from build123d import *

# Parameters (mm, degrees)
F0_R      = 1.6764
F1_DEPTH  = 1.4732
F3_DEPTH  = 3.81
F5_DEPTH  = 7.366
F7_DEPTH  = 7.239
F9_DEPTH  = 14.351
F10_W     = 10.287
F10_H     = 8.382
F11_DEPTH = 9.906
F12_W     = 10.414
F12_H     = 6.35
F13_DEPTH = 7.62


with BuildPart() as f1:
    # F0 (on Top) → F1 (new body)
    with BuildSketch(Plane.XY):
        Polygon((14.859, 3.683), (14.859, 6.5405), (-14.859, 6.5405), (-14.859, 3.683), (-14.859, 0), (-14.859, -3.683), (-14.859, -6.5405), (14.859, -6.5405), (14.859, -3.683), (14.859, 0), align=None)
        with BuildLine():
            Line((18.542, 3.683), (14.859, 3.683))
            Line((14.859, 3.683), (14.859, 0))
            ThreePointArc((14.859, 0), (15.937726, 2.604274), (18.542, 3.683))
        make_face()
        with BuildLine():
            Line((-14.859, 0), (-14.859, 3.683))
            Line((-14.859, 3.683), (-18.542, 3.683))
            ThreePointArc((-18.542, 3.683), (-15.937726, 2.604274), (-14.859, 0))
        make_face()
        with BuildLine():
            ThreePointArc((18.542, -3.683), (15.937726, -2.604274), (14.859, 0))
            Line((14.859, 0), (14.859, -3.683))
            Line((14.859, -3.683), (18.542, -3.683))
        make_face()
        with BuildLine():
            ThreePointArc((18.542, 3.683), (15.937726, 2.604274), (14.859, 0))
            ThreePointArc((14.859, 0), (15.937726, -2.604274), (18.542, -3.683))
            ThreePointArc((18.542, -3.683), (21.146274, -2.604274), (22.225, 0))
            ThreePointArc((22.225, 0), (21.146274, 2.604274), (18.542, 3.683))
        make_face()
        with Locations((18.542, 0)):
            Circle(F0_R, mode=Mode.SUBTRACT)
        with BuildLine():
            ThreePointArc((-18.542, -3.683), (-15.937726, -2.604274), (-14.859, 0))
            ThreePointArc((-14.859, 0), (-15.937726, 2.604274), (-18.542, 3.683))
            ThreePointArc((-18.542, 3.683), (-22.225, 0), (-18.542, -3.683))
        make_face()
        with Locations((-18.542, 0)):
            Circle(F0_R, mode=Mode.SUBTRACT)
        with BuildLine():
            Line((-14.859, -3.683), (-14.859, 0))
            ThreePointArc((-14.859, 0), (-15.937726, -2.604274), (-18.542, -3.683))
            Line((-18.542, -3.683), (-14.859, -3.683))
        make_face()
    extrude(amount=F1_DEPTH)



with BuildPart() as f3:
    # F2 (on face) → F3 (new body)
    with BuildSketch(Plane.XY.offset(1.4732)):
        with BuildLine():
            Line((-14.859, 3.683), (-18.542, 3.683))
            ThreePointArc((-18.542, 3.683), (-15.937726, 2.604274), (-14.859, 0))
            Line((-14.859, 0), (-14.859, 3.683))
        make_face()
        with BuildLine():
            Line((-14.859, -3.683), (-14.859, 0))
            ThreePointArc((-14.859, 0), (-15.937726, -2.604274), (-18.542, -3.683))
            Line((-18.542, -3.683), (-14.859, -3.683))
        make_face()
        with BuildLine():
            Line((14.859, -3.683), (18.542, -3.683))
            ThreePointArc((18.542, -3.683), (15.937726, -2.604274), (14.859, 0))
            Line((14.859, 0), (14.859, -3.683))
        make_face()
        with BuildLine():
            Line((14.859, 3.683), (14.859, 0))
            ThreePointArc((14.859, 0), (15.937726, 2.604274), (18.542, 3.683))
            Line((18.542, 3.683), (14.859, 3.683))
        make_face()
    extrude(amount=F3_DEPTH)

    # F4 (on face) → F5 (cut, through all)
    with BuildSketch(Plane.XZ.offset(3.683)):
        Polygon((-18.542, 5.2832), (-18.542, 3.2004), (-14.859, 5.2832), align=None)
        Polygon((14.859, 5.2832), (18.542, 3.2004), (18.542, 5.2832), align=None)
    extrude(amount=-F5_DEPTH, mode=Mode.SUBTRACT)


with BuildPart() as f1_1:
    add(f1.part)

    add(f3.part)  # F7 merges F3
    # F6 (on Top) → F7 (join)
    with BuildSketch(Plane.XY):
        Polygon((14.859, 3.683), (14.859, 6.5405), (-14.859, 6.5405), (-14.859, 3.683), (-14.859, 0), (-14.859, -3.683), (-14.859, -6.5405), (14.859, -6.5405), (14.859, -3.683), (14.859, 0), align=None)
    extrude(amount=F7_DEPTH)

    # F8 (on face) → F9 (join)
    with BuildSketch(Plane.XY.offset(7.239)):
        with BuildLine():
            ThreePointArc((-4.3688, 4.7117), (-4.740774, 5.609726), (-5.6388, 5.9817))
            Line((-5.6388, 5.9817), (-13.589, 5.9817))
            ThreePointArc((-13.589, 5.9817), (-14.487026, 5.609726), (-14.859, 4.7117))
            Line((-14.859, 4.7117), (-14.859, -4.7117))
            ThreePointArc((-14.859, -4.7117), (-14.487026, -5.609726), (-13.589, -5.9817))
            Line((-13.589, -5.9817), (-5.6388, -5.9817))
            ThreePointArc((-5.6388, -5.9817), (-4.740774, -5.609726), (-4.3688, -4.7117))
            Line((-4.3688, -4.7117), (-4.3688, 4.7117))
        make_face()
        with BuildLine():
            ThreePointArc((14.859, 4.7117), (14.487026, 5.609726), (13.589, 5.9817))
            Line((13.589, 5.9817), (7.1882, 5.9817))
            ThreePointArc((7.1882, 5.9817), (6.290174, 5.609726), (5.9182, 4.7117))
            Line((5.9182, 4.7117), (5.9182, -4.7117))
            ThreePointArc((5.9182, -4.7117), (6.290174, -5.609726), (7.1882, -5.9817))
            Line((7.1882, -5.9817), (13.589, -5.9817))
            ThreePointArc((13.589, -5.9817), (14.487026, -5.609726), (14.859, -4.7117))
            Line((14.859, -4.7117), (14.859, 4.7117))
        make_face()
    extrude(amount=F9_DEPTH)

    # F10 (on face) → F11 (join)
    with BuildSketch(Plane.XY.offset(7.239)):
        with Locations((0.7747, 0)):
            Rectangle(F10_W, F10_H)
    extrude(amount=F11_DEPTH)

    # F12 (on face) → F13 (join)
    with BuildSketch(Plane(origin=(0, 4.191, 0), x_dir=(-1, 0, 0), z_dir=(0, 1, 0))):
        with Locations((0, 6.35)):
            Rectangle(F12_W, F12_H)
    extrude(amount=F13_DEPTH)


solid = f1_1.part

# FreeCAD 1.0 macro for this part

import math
import FreeCAD as App
import Part
import Sketcher
Q = App.Units.Quantity


def add_polygon(sketch, points):
    """Adds a closed chain of lines whose ends are joined by coincident constraints."""
    first, n = sketch.GeometryCount, len(points)
    for a, b in zip(points, points[1:] + points[:1]):
        sketch.addGeometry(Part.LineSegment(App.Vector(*a, 0), App.Vector(*b, 0)), False)
    for i in range(n):
        sketch.addConstraint(Sketcher.Constraint("Coincident", first + i, 2, first + (i + 1) % n, 1))

doc = App.newDocument("Part")
body = doc.addObject("PartDesign::Body", "Body")

# Sketch on XY plane
sketch1 = body.newObject("Sketcher::SketchObject", "Sketch")
sketch1.AttachmentSupport = (doc.getObject("XY_Plane"), [""])
sketch1.MapMode = "FlatFace"
sketch1.addGeometry([
    Part.LineSegment(App.Vector(14.9, 6.5, 0), App.Vector(-14.9, 6.5, 0)),  # 0
    Part.LineSegment(App.Vector(-14.9, 6.5, 0), App.Vector(-14.9, 3.7, 0)),  # 1
    Part.LineSegment(App.Vector(-14.9, 3.7, 0), App.Vector(-18.5, 3.7, 0)),  # 2
    Part.ArcOfCircle(Part.Circle(App.Vector(-18.5, 0, 0), App.Vector(0, 0, 1), 3.7), math.radians(90), math.radians(270)),  # 3
    Part.LineSegment(App.Vector(-18.5, -3.7, 0), App.Vector(-14.9, -3.7, 0)),  # 4
    Part.LineSegment(App.Vector(-14.9, -3.7, 0), App.Vector(-14.9, -6.5, 0)),  # 5
    Part.LineSegment(App.Vector(-14.9, -6.5, 0), App.Vector(14.9, -6.5, 0)),  # 6
    Part.LineSegment(App.Vector(14.9, -6.5, 0), App.Vector(14.9, -3.7, 0)),  # 7
    Part.LineSegment(App.Vector(14.9, -3.7, 0), App.Vector(18.5, -3.7, 0)),  # 8
    Part.ArcOfCircle(Part.Circle(App.Vector(18.5, 0, 0), App.Vector(0, 0, 1), 3.7), math.radians(-90), math.radians(0)),  # 9
    Part.ArcOfCircle(Part.Circle(App.Vector(18.5, 0, 0), App.Vector(0, 0, 1), 3.7), math.radians(0), math.radians(90)),  # 10
    Part.LineSegment(App.Vector(18.5, 3.7, 0), App.Vector(14.9, 3.7, 0)),  # 11
    Part.LineSegment(App.Vector(14.9, 3.7, 0), App.Vector(14.9, 6.5, 0)),  # 12
    Part.Circle(App.Vector(-18.5, 0, 0), App.Vector(0, 0, 1), 1.7),  # 13
    Part.Circle(App.Vector(18.5, 0, 0), App.Vector(0, 0, 1), 1.7),  # 14
], False)
sketch1.addConstraint([
    Sketcher.Constraint("Coincident", 0, 2, 1, 1),
    Sketcher.Constraint("Coincident", 1, 2, 2, 1),
    Sketcher.Constraint("Tangent", 2, 2, 3, 1),
    Sketcher.Constraint("Tangent", 3, 2, 4, 1),
    Sketcher.Constraint("Coincident", 4, 2, 5, 1),
    Sketcher.Constraint("Coincident", 5, 2, 6, 1),
    Sketcher.Constraint("Coincident", 6, 2, 7, 1),
    Sketcher.Constraint("Coincident", 7, 2, 8, 1),
    Sketcher.Constraint("Tangent", 8, 2, 9, 1),
    Sketcher.Constraint("Tangent", 9, 2, 10, 1),
    Sketcher.Constraint("Tangent", 10, 2, 11, 1),
    Sketcher.Constraint("Coincident", 11, 2, 12, 1),
    Sketcher.Constraint("Coincident", 12, 2, 0, 1),
    Sketcher.Constraint("Horizontal", 0),
    Sketcher.Constraint("Vertical", 1),
    Sketcher.Constraint("Horizontal", 2),
    Sketcher.Constraint("Horizontal", 4),
    Sketcher.Constraint("Vertical", 5),
    Sketcher.Constraint("Horizontal", 6),
    Sketcher.Constraint("Vertical", 7),
    Sketcher.Constraint("Horizontal", 8),
    Sketcher.Constraint("Horizontal", 11),
    Sketcher.Constraint("Vertical", 12),
    Sketcher.Constraint("Coincident", 13, 3, 3, 3),
    Sketcher.Constraint("Coincident", 14, 3, 9, 3),
    Sketcher.Constraint("Equal", 3, 9),
    Sketcher.Constraint("Equal", 9, 10),
    Sketcher.Constraint("Equal", 13, 14),
    Sketcher.Constraint("Symmetric", 3, 3, 9, 3, -1, 1),
    Sketcher.Constraint("Symmetric", 0, 2, 6, 2, -1, 1),
    Sketcher.Constraint("Symmetric", 4, 2, 7, 2, -2),
    Sketcher.Constraint("PointOnObject", 9, 2, -1),
    Sketcher.Constraint("Vertical", 7, 2, 11, 2),
    Sketcher.Constraint("Diameter", 13, Q("0.132 in")),
    Sketcher.Constraint("Radius", 3, Q("0.145 in")),
    Sketcher.Constraint("DistanceX", 0, 2, 0, 1, Q("1.17 in")),
    Sketcher.Constraint("DistanceX", 2, 2, 2, 1, Q("0.145 in")),
    Sketcher.Constraint("DistanceY", 1, 2, 1, 1, Q("0.1125 in")),
])
pad1 = body.newObject("PartDesign::Pad", "Pad")
pad1.Profile = sketch1
pad1.Length = Q("0.058 in")
body2 = doc.addObject("PartDesign::Body", "Body001")
body2.AllowCompound = True

# Sketch on XY plane
sketch2 = body2.newObject("Sketcher::SketchObject", "Sketch001")
sketch2.AttachmentSupport = (doc.getObject("XY_Plane001"), [""])
sketch2.MapMode = "FlatFace"
sketch2.AttachmentOffset = App.Placement(App.Vector(0, 0, 0.058 * 25.4), App.Rotation())
sketch2.addGeometry([
    Part.LineSegment(App.Vector(-14.9, 3.7, 0), App.Vector(-18.5, 3.7, 0)),  # 0
    Part.ArcOfCircle(Part.Circle(App.Vector(-18.5, 0, 0), App.Vector(0, 0, 1), 3.7), math.radians(0), math.radians(90)),  # 1
    Part.LineSegment(App.Vector(-14.9, 0, 0), App.Vector(-14.9, 3.7, 0)),  # 2
    Part.LineSegment(App.Vector(-14.9, -3.7, 0), App.Vector(-14.9, 0, 0)),  # 3
    Part.ArcOfCircle(Part.Circle(App.Vector(-18.5, 0, 0), App.Vector(0, 0, 1), 3.7), math.radians(-90), math.radians(0)),  # 4
    Part.LineSegment(App.Vector(-18.5, -3.7, 0), App.Vector(-14.9, -3.7, 0)),  # 5
    Part.LineSegment(App.Vector(14.9, -3.7, 0), App.Vector(18.5, -3.7, 0)),  # 6
    Part.ArcOfCircle(Part.Circle(App.Vector(18.5, 0, 0), App.Vector(0, 0, 1), 3.7), math.radians(-180), math.radians(-90)),  # 7
    Part.LineSegment(App.Vector(14.9, 0, 0), App.Vector(14.9, -3.7, 0)),  # 8
    Part.LineSegment(App.Vector(14.9, 3.7, 0), App.Vector(14.9, 0, 0)),  # 9
    Part.ArcOfCircle(Part.Circle(App.Vector(18.5, 0, 0), App.Vector(0, 0, 1), 3.7), math.radians(90), math.radians(180)),  # 10
    Part.LineSegment(App.Vector(18.5, 3.7, 0), App.Vector(14.9, 3.7, 0)),  # 11
], False)
sketch2.addConstraint([
    Sketcher.Constraint("Tangent", 0, 2, 1, 2),
    Sketcher.Constraint("Tangent", 1, 1, 2, 1),
    Sketcher.Constraint("Coincident", 2, 2, 0, 1),
    Sketcher.Constraint("Tangent", 3, 2, 4, 2),
    Sketcher.Constraint("Tangent", 4, 1, 5, 1),
    Sketcher.Constraint("Coincident", 5, 2, 3, 1),
    Sketcher.Constraint("Tangent", 6, 2, 7, 2),
    Sketcher.Constraint("Tangent", 7, 1, 8, 1),
    Sketcher.Constraint("Coincident", 8, 2, 6, 1),
    Sketcher.Constraint("Tangent", 9, 2, 10, 2),
    Sketcher.Constraint("Tangent", 10, 1, 11, 1),
    Sketcher.Constraint("Coincident", 11, 2, 9, 1),
    Sketcher.Constraint("Horizontal", 0),
    Sketcher.Constraint("Vertical", 2),
    Sketcher.Constraint("Vertical", 3),
    Sketcher.Constraint("Horizontal", 5),
    Sketcher.Constraint("Horizontal", 6),
    Sketcher.Constraint("Vertical", 8),
    Sketcher.Constraint("Vertical", 9),
    Sketcher.Constraint("Horizontal", 11),
    Sketcher.Constraint("Coincident", 4, 3, 1, 3),
    Sketcher.Constraint("Coincident", 10, 3, 7, 3),
    Sketcher.Constraint("Equal", 1, 4),
    Sketcher.Constraint("Equal", 4, 7),
    Sketcher.Constraint("Equal", 7, 10),
    Sketcher.Constraint("Symmetric", 1, 3, 7, 3, -1, 1),
    Sketcher.Constraint("PointOnObject", 1, 3, -1),
    Sketcher.Constraint("Radius", 1, Q("0.145 in")),
    Sketcher.Constraint("DistanceX", 1, 3, -1, 1, Q("0.73 in")),
])
pad2 = body2.newObject("PartDesign::Pad", "Pad001")
pad2.Profile = sketch2
pad2.Length = Q("0.15 in")

# Sketch on XZ plane
sketch3 = body2.newObject("Sketcher::SketchObject", "Sketch002")
sketch3.AttachmentSupport = (doc.getObject("XZ_Plane001"), [""])
sketch3.MapMode = "FlatFace"
sketch3.AttachmentOffset = App.Placement(App.Vector(0, 0, 0.145 * 25.4), App.Rotation())
add_polygon(sketch3, [(-18.5, 5.3), (-18.5, 3.2), (-14.9, 5.3)])  # lines 0-2
add_polygon(sketch3, [(14.9, 5.3), (18.5, 3.2), (18.5, 5.3)])  # lines 3-5
sketch3.addConstraint([
    Sketcher.Constraint("Vertical", 0),
    Sketcher.Constraint("Horizontal", 2),
    Sketcher.Constraint("Vertical", 4),
    Sketcher.Constraint("Horizontal", 5),
    Sketcher.Constraint("Symmetric", 0, 2, 3, 2, -2),
    Sketcher.Constraint("Symmetric", 1, 2, 5, 2, -2),
    Sketcher.Constraint("DistanceX", 2, 2, 2, 1, Q("0.145 in")),
    Sketcher.Constraint("DistanceY", 0, 2, 0, 1, Q("0.082 in")),
    Sketcher.Constraint("DistanceX", 0, 2, -1, 1, Q("0.73 in")),
    Sketcher.Constraint("DistanceY", -1, 1, 0, 2, Q("0.126 in")),
])
pocket1 = body2.newObject("PartDesign::Pocket", "Pocket")
pocket1.Profile = sketch3
pocket1.Type = "ThroughAll"
doc.recompute()

boolean = body.newObject("PartDesign::Boolean", "Boolean")
boolean.Type = "Fuse"
boolean.addObjects([body2])

# Sketch on XY plane
sketch4 = body.newObject("Sketcher::SketchObject", "Sketch003")
sketch4.AttachmentSupport = (doc.getObject("XY_Plane"), [""])
sketch4.MapMode = "FlatFace"
add_polygon(sketch4, [(15, 7), (-15, 7), (-15, -7), (15, -7)])  # lines 0-3
sketch4.addConstraint([
    Sketcher.Constraint("Horizontal", 0),
    Sketcher.Constraint("Vertical", 1),
    Sketcher.Constraint("Horizontal", 2),
    Sketcher.Constraint("Vertical", 3),
    Sketcher.Constraint("Symmetric", 0, 2, 2, 2, -1, 1),
    Sketcher.Constraint("DistanceX", 0, 2, 0, 1, Q("1.17 in")),
    Sketcher.Constraint("DistanceY", 1, 2, 1, 1, Q("0.515 in")),
])
pad3 = body.newObject("PartDesign::Pad", "Pad002")
pad3.Profile = sketch4
pad3.Length = Q("0.285 in")

# Sketch on XY plane
sketch5 = body.newObject("Sketcher::SketchObject", "Sketch004")
sketch5.AttachmentSupport = (doc.getObject("XY_Plane"), [""])
sketch5.MapMode = "FlatFace"
sketch5.AttachmentOffset = App.Placement(App.Vector(0, 0, 0.285 * 25.4), App.Rotation())
sketch5.addGeometry([
    Part.ArcOfCircle(Part.Circle(App.Vector(-5.6, 4.7, 0), App.Vector(0, 0, 1), 1.3), math.radians(0), math.radians(90)),  # 0
    Part.LineSegment(App.Vector(-5.6, 6, 0), App.Vector(-13.6, 6, 0)),  # 1
    Part.ArcOfCircle(Part.Circle(App.Vector(-13.6, 4.7, 0), App.Vector(0, 0, 1), 1.3), math.radians(90), math.radians(180)),  # 2
    Part.LineSegment(App.Vector(-14.9, 4.7, 0), App.Vector(-14.9, -4.7, 0)),  # 3
    Part.ArcOfCircle(Part.Circle(App.Vector(-13.6, -4.7, 0), App.Vector(0, 0, 1), 1.3), math.radians(180), math.radians(270)),  # 4
    Part.LineSegment(App.Vector(-13.6, -6, 0), App.Vector(-5.6, -6, 0)),  # 5
    Part.ArcOfCircle(Part.Circle(App.Vector(-5.6, -4.7, 0), App.Vector(0, 0, 1), 1.3), math.radians(-90), math.radians(0)),  # 6
    Part.LineSegment(App.Vector(-4.4, -4.7, 0), App.Vector(-4.4, 4.7, 0)),  # 7
    Part.ArcOfCircle(Part.Circle(App.Vector(13.6, 4.7, 0), App.Vector(0, 0, 1), 1.3), math.radians(0), math.radians(90)),  # 8
    Part.LineSegment(App.Vector(13.6, 6, 0), App.Vector(7.2, 6, 0)),  # 9
    Part.ArcOfCircle(Part.Circle(App.Vector(7.2, 4.7, 0), App.Vector(0, 0, 1), 1.3), math.radians(90), math.radians(180)),  # 10
    Part.LineSegment(App.Vector(5.9, 4.7, 0), App.Vector(5.9, -4.7, 0)),  # 11
    Part.ArcOfCircle(Part.Circle(App.Vector(7.2, -4.7, 0), App.Vector(0, 0, 1), 1.3), math.radians(180), math.radians(270)),  # 12
    Part.LineSegment(App.Vector(7.2, -6, 0), App.Vector(13.6, -6, 0)),  # 13
    Part.ArcOfCircle(Part.Circle(App.Vector(13.6, -4.7, 0), App.Vector(0, 0, 1), 1.3), math.radians(-90), math.radians(0)),  # 14
    Part.LineSegment(App.Vector(14.9, -4.7, 0), App.Vector(14.9, 4.7, 0)),  # 15
], False)
sketch5.addConstraint([
    Sketcher.Constraint("Tangent", 0, 2, 1, 1),
    Sketcher.Constraint("Tangent", 1, 2, 2, 1),
    Sketcher.Constraint("Tangent", 2, 2, 3, 1),
    Sketcher.Constraint("Tangent", 3, 2, 4, 1),
    Sketcher.Constraint("Tangent", 4, 2, 5, 1),
    Sketcher.Constraint("Tangent", 5, 2, 6, 1),
    Sketcher.Constraint("Tangent", 6, 2, 7, 1),
    Sketcher.Constraint("Tangent", 7, 2, 0, 1),
    Sketcher.Constraint("Tangent", 8, 2, 9, 1),
    Sketcher.Constraint("Tangent", 9, 2, 10, 1),
    Sketcher.Constraint("Tangent", 10, 2, 11, 1),
    Sketcher.Constraint("Tangent", 11, 2, 12, 1),
    Sketcher.Constraint("Tangent", 12, 2, 13, 1),
    Sketcher.Constraint("Tangent", 13, 2, 14, 1),
    Sketcher.Constraint("Tangent", 14, 2, 15, 1),
    Sketcher.Constraint("Tangent", 15, 2, 8, 1),
    Sketcher.Constraint("Horizontal", 1),
    Sketcher.Constraint("Vertical", 3),
    Sketcher.Constraint("Horizontal", 5),
    Sketcher.Constraint("Vertical", 7),
    Sketcher.Constraint("Horizontal", 9),
    Sketcher.Constraint("Vertical", 11),
    Sketcher.Constraint("Horizontal", 13),
    Sketcher.Constraint("Vertical", 15),
    Sketcher.Constraint("Equal", 0, 2),
    Sketcher.Constraint("Equal", 2, 4),
    Sketcher.Constraint("Equal", 4, 6),
    Sketcher.Constraint("Equal", 6, 8),
    Sketcher.Constraint("Equal", 8, 10),
    Sketcher.Constraint("Equal", 10, 12),
    Sketcher.Constraint("Equal", 12, 14),
    Sketcher.Constraint("Symmetric", 4, 3, 8, 3, -1, 1),
    Sketcher.Constraint("Horizontal", 2, 3, 8, 3),
    Sketcher.Constraint("Horizontal", 6, 3, 12, 3),
    Sketcher.Constraint("Radius", 0, Q("0.0499999 in")),
    Sketcher.Constraint("DistanceX", 1, 2, 1, 1, Q("0.313 in")),
    Sketcher.Constraint("DistanceX", 9, 2, 9, 1, Q("0.252 in")),
    Sketcher.Constraint("DistanceY", 3, 2, 3, 1, Q("0.371 in")),
    Sketcher.Constraint("DistanceX", 2, 3, 8, 3, Q("1.0700001 in")),
])
pad4 = body.newObject("PartDesign::Pad", "Pad003")
pad4.Profile = sketch5
pad4.Length = Q("0.565 in")

# Sketch on XY plane
sketch6 = body.newObject("Sketcher::SketchObject", "Sketch005")
sketch6.AttachmentSupport = (doc.getObject("XY_Plane"), [""])
sketch6.MapMode = "FlatFace"
sketch6.AttachmentOffset = App.Placement(App.Vector(0, 0, 0.285 * 25.4), App.Rotation())
add_polygon(sketch6, [(-4, 4), (-4, -4), (6, -4), (6, 4)])  # lines 0-3
sketch6.addConstraint([
    Sketcher.Constraint("Vertical", 0),
    Sketcher.Constraint("Horizontal", 1),
    Sketcher.Constraint("Vertical", 2),
    Sketcher.Constraint("Horizontal", 3),
    Sketcher.Constraint("DistanceY", 0, 2, 0, 1, Q("0.33 in")),
    Sketcher.Constraint("DistanceX", 1, 1, 1, 2, Q("0.405 in")),
    Sketcher.Constraint("DistanceX", 0, 2, -1, 1, Q("0.172 in")),
    Sketcher.Constraint("DistanceY", 0, 2, -1, 1, Q("0.165 in")),
])
pad5 = body.newObject("PartDesign::Pad", "Pad004")
pad5.Profile = sketch6
pad5.Length = Q("0.39 in")

# Sketch on XZ plane
sketch7 = body.newObject("Sketcher::SketchObject", "Sketch006")
sketch7.AttachmentSupport = (doc.getObject("XZ_Plane"), [""])
sketch7.MapMode = "FlatFace"
sketch7.AttachmentOffset = App.Placement(App.Vector(0, 0, -0.165 * 25.4), App.Rotation())
add_polygon(sketch7, [(5, 10), (5, 3), (-5, 3), (-5, 10)])  # lines 0-3
sketch7.addConstraint([
    Sketcher.Constraint("Vertical", 0),
    Sketcher.Constraint("Horizontal", 1),
    Sketcher.Constraint("Vertical", 2),
    Sketcher.Constraint("Horizontal", 3),
    Sketcher.Constraint("DistanceX", 1, 2, 1, 1, Q("0.41 in")),
    Sketcher.Constraint("DistanceY", 0, 2, 0, 1, Q("0.25 in")),
    Sketcher.Constraint("DistanceX", -1, 1, 0, 2, Q("0.205 in")),
    Sketcher.Constraint("DistanceY", -1, 1, 0, 2, Q("0.125 in")),
])
pad6 = body.newObject("PartDesign::Pad", "Pad005")
pad6.Profile = sketch7
pad6.Length = Q("0.3 in")
pad6.Reversed = True

doc.recompute()
